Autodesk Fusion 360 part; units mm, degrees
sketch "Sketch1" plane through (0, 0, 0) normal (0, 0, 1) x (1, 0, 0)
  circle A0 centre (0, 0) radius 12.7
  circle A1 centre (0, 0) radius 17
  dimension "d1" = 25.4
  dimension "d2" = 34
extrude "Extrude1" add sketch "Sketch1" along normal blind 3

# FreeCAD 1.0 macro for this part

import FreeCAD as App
import Part
import Sketcher

doc = App.newDocument("Part")
body = doc.addObject("PartDesign::Body", "Body")

# Sketch on XY plane
sketch1 = body.newObject("Sketcher::SketchObject", "Sketch")
sketch1.AttachmentSupport = (doc.getObject("XY_Plane"), [""])
sketch1.MapMode = "FlatFace"
sketch1.addGeometry([
    Part.Circle(App.Vector(0, 0, 0), App.Vector(0, 0, 1), 17),
    Part.Circle(App.Vector(0, 0, 0), App.Vector(0, 0, 1), 13),
], False)
sketch1.addConstraint([
    Sketcher.Constraint("Coincident", 0, 3, -1, 1),
    Sketcher.Constraint("Coincident", 1, 3, -1, 1),
    Sketcher.Constraint("Diameter", 0, 34.0),
    Sketcher.Constraint("Diameter", 1, 25.4),
])
pad1 = body.newObject("PartDesign::Pad", "Pad")
pad1.Profile = sketch1
pad1.Length = 3

doc.recompute()
